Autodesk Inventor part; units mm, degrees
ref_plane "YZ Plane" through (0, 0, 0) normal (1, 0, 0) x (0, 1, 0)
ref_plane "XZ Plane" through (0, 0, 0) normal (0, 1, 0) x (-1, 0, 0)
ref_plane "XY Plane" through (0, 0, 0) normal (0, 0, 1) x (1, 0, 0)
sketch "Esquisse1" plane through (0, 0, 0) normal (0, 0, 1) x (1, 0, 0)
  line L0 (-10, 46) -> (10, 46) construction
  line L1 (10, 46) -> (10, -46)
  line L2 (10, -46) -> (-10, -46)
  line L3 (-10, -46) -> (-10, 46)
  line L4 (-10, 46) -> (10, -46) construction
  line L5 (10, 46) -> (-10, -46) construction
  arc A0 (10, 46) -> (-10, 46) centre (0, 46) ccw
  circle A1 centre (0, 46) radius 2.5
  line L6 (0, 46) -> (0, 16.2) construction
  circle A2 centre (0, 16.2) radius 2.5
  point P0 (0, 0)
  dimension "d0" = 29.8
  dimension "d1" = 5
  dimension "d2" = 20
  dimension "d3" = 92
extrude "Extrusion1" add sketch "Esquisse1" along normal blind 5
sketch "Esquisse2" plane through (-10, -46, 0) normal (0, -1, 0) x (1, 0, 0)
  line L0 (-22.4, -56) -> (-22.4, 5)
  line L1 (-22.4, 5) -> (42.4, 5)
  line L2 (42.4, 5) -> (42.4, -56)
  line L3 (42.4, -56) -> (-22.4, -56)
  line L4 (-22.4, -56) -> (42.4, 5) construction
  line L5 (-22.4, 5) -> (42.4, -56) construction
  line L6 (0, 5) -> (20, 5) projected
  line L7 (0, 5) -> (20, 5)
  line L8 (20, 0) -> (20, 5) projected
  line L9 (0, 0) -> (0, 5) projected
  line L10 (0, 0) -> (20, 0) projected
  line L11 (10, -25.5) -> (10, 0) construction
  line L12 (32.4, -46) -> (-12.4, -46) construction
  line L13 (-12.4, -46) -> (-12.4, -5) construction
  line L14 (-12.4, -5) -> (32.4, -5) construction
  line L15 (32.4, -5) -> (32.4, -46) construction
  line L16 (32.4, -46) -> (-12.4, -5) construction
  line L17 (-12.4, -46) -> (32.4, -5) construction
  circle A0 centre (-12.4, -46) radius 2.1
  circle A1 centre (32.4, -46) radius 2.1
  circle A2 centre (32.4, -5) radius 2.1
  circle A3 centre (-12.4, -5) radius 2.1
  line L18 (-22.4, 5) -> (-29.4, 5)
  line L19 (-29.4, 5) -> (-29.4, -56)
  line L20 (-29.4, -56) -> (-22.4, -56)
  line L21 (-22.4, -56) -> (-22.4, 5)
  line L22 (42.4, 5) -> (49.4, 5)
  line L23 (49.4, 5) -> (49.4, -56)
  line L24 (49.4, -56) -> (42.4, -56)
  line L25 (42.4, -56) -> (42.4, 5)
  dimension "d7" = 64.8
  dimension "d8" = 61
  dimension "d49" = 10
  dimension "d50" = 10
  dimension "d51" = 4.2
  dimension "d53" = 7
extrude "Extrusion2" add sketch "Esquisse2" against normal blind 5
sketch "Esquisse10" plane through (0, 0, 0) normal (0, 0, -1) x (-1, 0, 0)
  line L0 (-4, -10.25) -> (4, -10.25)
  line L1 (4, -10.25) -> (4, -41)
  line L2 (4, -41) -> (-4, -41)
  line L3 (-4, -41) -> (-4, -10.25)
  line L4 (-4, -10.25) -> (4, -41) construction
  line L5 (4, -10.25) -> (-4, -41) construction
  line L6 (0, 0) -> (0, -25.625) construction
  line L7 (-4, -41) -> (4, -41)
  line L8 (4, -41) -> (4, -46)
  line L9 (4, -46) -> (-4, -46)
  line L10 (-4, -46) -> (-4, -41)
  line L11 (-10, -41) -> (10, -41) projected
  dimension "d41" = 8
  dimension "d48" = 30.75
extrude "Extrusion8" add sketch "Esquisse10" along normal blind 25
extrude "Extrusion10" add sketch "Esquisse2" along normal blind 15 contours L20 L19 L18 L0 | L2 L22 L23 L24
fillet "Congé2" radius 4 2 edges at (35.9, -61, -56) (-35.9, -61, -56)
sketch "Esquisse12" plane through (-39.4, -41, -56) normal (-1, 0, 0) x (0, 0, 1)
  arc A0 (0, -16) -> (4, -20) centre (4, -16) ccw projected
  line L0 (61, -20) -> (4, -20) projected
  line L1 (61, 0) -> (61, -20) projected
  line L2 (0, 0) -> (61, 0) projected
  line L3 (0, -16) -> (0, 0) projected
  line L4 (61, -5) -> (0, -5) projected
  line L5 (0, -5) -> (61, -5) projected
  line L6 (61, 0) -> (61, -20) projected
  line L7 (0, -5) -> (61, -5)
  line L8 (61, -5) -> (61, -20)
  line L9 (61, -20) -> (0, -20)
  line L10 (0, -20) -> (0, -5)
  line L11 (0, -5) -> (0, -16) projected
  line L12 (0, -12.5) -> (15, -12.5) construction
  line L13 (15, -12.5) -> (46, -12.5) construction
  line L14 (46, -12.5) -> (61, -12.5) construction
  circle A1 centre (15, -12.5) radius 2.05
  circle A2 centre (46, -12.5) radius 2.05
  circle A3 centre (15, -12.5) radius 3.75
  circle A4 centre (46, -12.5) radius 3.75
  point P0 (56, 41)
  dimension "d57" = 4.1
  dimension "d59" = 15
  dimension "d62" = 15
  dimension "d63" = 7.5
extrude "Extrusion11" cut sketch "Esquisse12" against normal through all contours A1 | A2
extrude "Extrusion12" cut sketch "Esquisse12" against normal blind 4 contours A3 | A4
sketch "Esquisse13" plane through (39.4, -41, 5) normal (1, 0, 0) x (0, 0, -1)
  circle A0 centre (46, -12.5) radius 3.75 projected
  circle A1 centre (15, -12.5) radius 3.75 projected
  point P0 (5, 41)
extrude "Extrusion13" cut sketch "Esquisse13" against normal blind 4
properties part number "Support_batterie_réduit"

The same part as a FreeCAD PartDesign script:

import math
import FreeCAD as App
import Part
import Sketcher


def edges_at(feature, points):
    """Names of the edges that pass closest to the given points."""
    edges = feature.Shape.Edges
    near = lambda p: min(range(len(edges)), key=lambda i: edges[i].distToShape(Part.Vertex(*p))[0])
    return sorted({f"Edge{near(p) + 1}" for p in points})

doc = App.newDocument("Part")
body = doc.addObject("PartDesign::Body", "Body")

# Sketch on XY plane
sketch1 = body.newObject("Sketcher::SketchObject", "Sketch")
sketch1.AttachmentSupport = (doc.getObject("XY_Plane"), [""])
sketch1.MapMode = "FlatFace"
sketch1.addGeometry([
    Part.LineSegment(App.Vector(10, -46, 0), App.Vector(10, 46, 0)),  # 0
    Part.ArcOfCircle(Part.Circle(App.Vector(0, 46, 0), App.Vector(0, 0, 1), 10), math.radians(0), math.radians(180)),  # 1
    Part.LineSegment(App.Vector(-10, 46, 0), App.Vector(-10, -46, 0)),  # 2
    Part.LineSegment(App.Vector(-10, -46, 0), App.Vector(10, -46, 0)),  # 3
    Part.Circle(App.Vector(0, 16.2, 0), App.Vector(0, 0, 1), 2.5),  # 4
    Part.Circle(App.Vector(0, 46, 0), App.Vector(0, 0, 1), 2.5),  # 5
], False)
sketch1.addConstraint([
    Sketcher.Constraint("Tangent", 0, 2, 1, 1),
    Sketcher.Constraint("Tangent", 1, 2, 2, 1),
    Sketcher.Constraint("Coincident", 2, 2, 3, 1),
    Sketcher.Constraint("Coincident", 3, 2, 0, 1),
    Sketcher.Constraint("Vertical", 0),
    Sketcher.Constraint("Vertical", 2),
    Sketcher.Constraint("Horizontal", 3),
    Sketcher.Constraint("Coincident", 5, 3, 1, 3),
    Sketcher.Constraint("Equal", 4, 5),
    Sketcher.Constraint("Symmetric", 0, 2, 2, 2, -1, 1),
    Sketcher.Constraint("PointOnObject", 4, 3, -2),
    Sketcher.Constraint("Diameter", 4, 5.0),
    Sketcher.Constraint("Radius", 1, 10.0),
    Sketcher.Constraint("DistanceY", 0, 1, 0, 2, 92.0),
    Sketcher.Constraint("DistanceY", 4, 3, 1, 3, 29.8),
])
pad1 = body.newObject("PartDesign::Pad", "Pad")
pad1.Profile = sketch1
pad1.Length = 5

# Sketch on XZ plane
sketch2 = body.newObject("Sketcher::SketchObject", "Sketch001")
sketch2.AttachmentSupport = (doc.getObject("XZ_Plane"), [""])
sketch2.MapMode = "FlatFace"
sketch2.AttachmentOffset = App.Placement(App.Vector(0, 0, 46), App.Rotation())
sketch2.addGeometry([
    Part.LineSegment(App.Vector(-39.4, -56, 0), App.Vector(39.4, -56, 0)),  # 0
    Part.LineSegment(App.Vector(39.4, -56, 0), App.Vector(39.4, 5, 0)),  # 1
    Part.LineSegment(App.Vector(39.4, 5, 0), App.Vector(-39.4, 5, 0)),  # 2
    Part.LineSegment(App.Vector(-39.4, 5, 0), App.Vector(-39.4, -56, 0)),  # 3
    Part.Circle(App.Vector(22.4, -5, 0), App.Vector(0, 0, 1), 2.1),  # 4
    Part.Circle(App.Vector(-22.4, -46, 0), App.Vector(0, 0, 1), 2.1),  # 5
    Part.Circle(App.Vector(22.4, -46, 0), App.Vector(0, 0, 1), 2.1),  # 6
    Part.Circle(App.Vector(-22.4, -5, 0), App.Vector(0, 0, 1), 2.1),  # 7
], False)
sketch2.addConstraint([
    Sketcher.Constraint("Coincident", 0, 2, 1, 1),
    Sketcher.Constraint("Coincident", 1, 2, 2, 1),
    Sketcher.Constraint("Coincident", 2, 2, 3, 1),
    Sketcher.Constraint("Coincident", 3, 2, 0, 1),
    Sketcher.Constraint("Horizontal", 0),
    Sketcher.Constraint("Vertical", 1),
    Sketcher.Constraint("Horizontal", 2),
    Sketcher.Constraint("Vertical", 3),
    Sketcher.Constraint("Equal", 4, 5),
    Sketcher.Constraint("Equal", 5, 6),
    Sketcher.Constraint("Equal", 6, 7),
    Sketcher.Constraint("Symmetric", 5, 3, 6, 3, -2),
    Sketcher.Constraint("Symmetric", 4, 3, 7, 3, -2),
    Sketcher.Constraint("Vertical", 4, 3, 6, 3),
    Sketcher.Constraint("Diameter", 4, 4.2),
    Sketcher.Constraint("DistanceY", 1, 1, 1, 2, 61.0),
    Sketcher.Constraint("DistanceY", 0, 2, 6, 3, 10.0),
    Sketcher.Constraint("DistanceY", 4, 3, 1, 2, 10.0),
    Sketcher.Constraint("DistanceX", 0, 1, 0, 2, 78.8),
    Sketcher.Constraint("DistanceY", 4, 3, -1, 1, 5.0),
    Sketcher.Constraint("DistanceX", 6, 3, 0, 2, 17.0),
    Sketcher.Constraint("DistanceX", 2, 2, 7, 3, 17.0),
])
pad2 = body.newObject("PartDesign::Pad", "Pad001")
pad2.Profile = sketch2
pad2.Length = 5
pad2.Reversed = True

# Sketch on XY plane
sketch3 = body.newObject("Sketcher::SketchObject", "Sketch002")
sketch3.AttachmentSupport = (doc.getObject("XY_Plane"), [""])
sketch3.MapMode = "FlatFace"
sketch3.addGeometry([
    Part.LineSegment(App.Vector(-4, -10, 0), App.Vector(4, -10, 0)),
    Part.LineSegment(App.Vector(4, -10, 0), App.Vector(4, -46, 0)),
    Part.LineSegment(App.Vector(4, -46, 0), App.Vector(-4, -46, 0)),
    Part.LineSegment(App.Vector(-4, -46, 0), App.Vector(-4, -10, 0)),
], False)
sketch3.addConstraint([
    Sketcher.Constraint("Coincident", 0, 2, 1, 1),
    Sketcher.Constraint("Coincident", 1, 2, 2, 1),
    Sketcher.Constraint("Coincident", 2, 2, 3, 1),
    Sketcher.Constraint("Coincident", 3, 2, 0, 1),
    Sketcher.Constraint("Horizontal", 0),
    Sketcher.Constraint("Vertical", 1),
    Sketcher.Constraint("Horizontal", 2),
    Sketcher.Constraint("Vertical", 3),
    Sketcher.Constraint("DistanceX", 0, 1, 0, 2, 8.0),
    Sketcher.Constraint("DistanceX", -1, 1, 0, 2, 4.0),
    Sketcher.Constraint("DistanceY", 1, 2, -1, 1, 46.0),
    Sketcher.Constraint("DistanceY", 1, 2, 1, 1, 35.75),
])
pad3 = body.newObject("PartDesign::Pad", "Pad002")
pad3.Profile = sketch3
pad3.Length = 25
pad3.Reversed = True

# Sketch on XZ plane
sketch4 = body.newObject("Sketcher::SketchObject", "Sketch003")
sketch4.AttachmentSupport = (doc.getObject("XZ_Plane"), [""])
sketch4.MapMode = "FlatFace"
sketch4.AttachmentOffset = App.Placement(App.Vector(0, 0, 46), App.Rotation())
sketch4.addGeometry([
    Part.LineSegment(App.Vector(-39, -56, 0), App.Vector(-32, -56, 0)),  # 0
    Part.LineSegment(App.Vector(-32, -56, 0), App.Vector(-32, 5, 0)),  # 1
    Part.LineSegment(App.Vector(-32, 5, 0), App.Vector(-39, 5, 0)),  # 2
    Part.LineSegment(App.Vector(-39, 5, 0), App.Vector(-39, -56, 0)),  # 3
    Part.LineSegment(App.Vector(32, 5, 0), App.Vector(32, -56, 0)),  # 4
    Part.LineSegment(App.Vector(32, -56, 0), App.Vector(39, -56, 0)),  # 5
    Part.LineSegment(App.Vector(39, -56, 0), App.Vector(39, 5, 0)),  # 6
    Part.LineSegment(App.Vector(39, 5, 0), App.Vector(32, 5, 0)),  # 7
], False)
sketch4.addConstraint([
    Sketcher.Constraint("Coincident", 0, 2, 1, 1),
    Sketcher.Constraint("Coincident", 1, 2, 2, 1),
    Sketcher.Constraint("Coincident", 2, 2, 3, 1),
    Sketcher.Constraint("Coincident", 3, 2, 0, 1),
    Sketcher.Constraint("Coincident", 4, 2, 5, 1),
    Sketcher.Constraint("Coincident", 5, 2, 6, 1),
    Sketcher.Constraint("Coincident", 6, 2, 7, 1),
    Sketcher.Constraint("Coincident", 7, 2, 4, 1),
    Sketcher.Constraint("Horizontal", 0),
    Sketcher.Constraint("Vertical", 1),
    Sketcher.Constraint("Horizontal", 2),
    Sketcher.Constraint("Vertical", 3),
    Sketcher.Constraint("Vertical", 4),
    Sketcher.Constraint("Horizontal", 5),
    Sketcher.Constraint("Vertical", 6),
    Sketcher.Constraint("Horizontal", 7),
    Sketcher.Constraint("Symmetric", 0, 2, 4, 2, -2),
    Sketcher.Constraint("Symmetric", 2, 2, 6, 2, -2),
    Sketcher.Constraint("DistanceX", 0, 1, 0, 2, 7.0),
    Sketcher.Constraint("DistanceY", 1, 1, 1, 2, 61.0),
    Sketcher.Constraint("DistanceX", 0, 2, 4, 2, 64.8),
    Sketcher.Constraint("DistanceY", 0, 2, -1, 1, 56.0),
])
pad4 = body.newObject("PartDesign::Pad", "Pad003")
pad4.Profile = sketch4
pad4.Length = 15
doc.recompute()

fillet = body.newObject("PartDesign::Fillet", "Fillet")
fillet.Base = (pad4, edges_at(pad4, [(35.9, -61, -56), (-35.9, -61, -56)]))
fillet.Radius = 4

# Sketch on YZ plane
sketch5 = body.newObject("Sketcher::SketchObject", "Sketch004")
sketch5.AttachmentSupport = (doc.getObject("YZ_Plane"), [""])
sketch5.MapMode = "FlatFace"
sketch5.AttachmentOffset = App.Placement(App.Vector(0, 0, -39.4), App.Rotation())
sketch5.addGeometry([
    Part.Circle(App.Vector(-53.5, -41, 0), App.Vector(0, 0, 1), 2),
    Part.Circle(App.Vector(-53.5, -10, 0), App.Vector(0, 0, 1), 2),
], False)
sketch5.addConstraint([
    Sketcher.Constraint("Equal", 0, 1),
    Sketcher.Constraint("Vertical", 0, 3, 1, 3),
    Sketcher.Constraint("Diameter", 0, 4.1),
    Sketcher.Constraint("DistanceY", 0, 3, -1, 1, 41.0),
    Sketcher.Constraint("DistanceY", 1, 3, -1, 1, 10.0),
    Sketcher.Constraint("DistanceX", 0, 3, -1, 1, 53.5),
])
pocket1 = body.newObject("PartDesign::Pocket", "Pocket")
pocket1.Profile = sketch5
pocket1.Type = "ThroughAll"
pocket1.Reversed = True

# Sketch on YZ plane
sketch6 = body.newObject("Sketcher::SketchObject", "Sketch005")
sketch6.AttachmentSupport = (doc.getObject("YZ_Plane"), [""])
sketch6.MapMode = "FlatFace"
sketch6.AttachmentOffset = App.Placement(App.Vector(0, 0, -39.4), App.Rotation())
sketch6.addGeometry([
    Part.Circle(App.Vector(-53.5, -41, 0), App.Vector(0, 0, 1), 3.8),
    Part.Circle(App.Vector(-53.5, -41, 0), App.Vector(0, 0, 1), 2),
    Part.Circle(App.Vector(-53.5, -10, 0), App.Vector(0, 0, 1), 3.8),
    Part.Circle(App.Vector(-53.5, -10, 0), App.Vector(0, 0, 1), 2),
], False)
sketch6.addConstraint([
    Sketcher.Constraint("Coincident", 1, 3, 0, 3),
    Sketcher.Constraint("Coincident", 3, 3, 2, 3),
    Sketcher.Constraint("Equal", 0, 2),
    Sketcher.Constraint("Equal", 1, 3),
    Sketcher.Constraint("Vertical", 1, 3, 2, 3),
    Sketcher.Constraint("Diameter", 0, 7.5),
    Sketcher.Constraint("Diameter", 1, 4.1),
    Sketcher.Constraint("DistanceY", 0, 3, -1, 1, 41.0),
    Sketcher.Constraint("DistanceY", 2, 3, -1, 1, 10.0),
    Sketcher.Constraint("DistanceX", 0, 3, -1, 1, 53.5),
])
pocket2 = body.newObject("PartDesign::Pocket", "Pocket001")
pocket2.Profile = sketch6
pocket2.Length = 4
pocket2.Reversed = True

# Sketch on YZ plane
sketch7 = body.newObject("Sketcher::SketchObject", "Sketch006")
sketch7.AttachmentSupport = (doc.getObject("YZ_Plane"), [""])
sketch7.MapMode = "FlatFace"
sketch7.AttachmentOffset = App.Placement(App.Vector(0, 0, 39.4), App.Rotation())
sketch7.addGeometry([
    Part.Circle(App.Vector(-53.5, -41, 0), App.Vector(0, 0, 1), 3.8),
    Part.Circle(App.Vector(-53.5, -10, 0), App.Vector(0, 0, 1), 3.8),
], False)
sketch7.addConstraint([
    Sketcher.Constraint("Equal", 0, 1),
    Sketcher.Constraint("Vertical", 0, 3, 1, 3),
    Sketcher.Constraint("Diameter", 0, 7.5),
    Sketcher.Constraint("DistanceY", 0, 3, -1, 1, 41.0),
    Sketcher.Constraint("DistanceY", 1, 3, -1, 1, 10.0),
    Sketcher.Constraint("DistanceX", 0, 3, -1, 1, 53.5),
])
pocket3 = body.newObject("PartDesign::Pocket", "Pocket002")
pocket3.Profile = sketch7
pocket3.Length = 4

doc.recompute()
